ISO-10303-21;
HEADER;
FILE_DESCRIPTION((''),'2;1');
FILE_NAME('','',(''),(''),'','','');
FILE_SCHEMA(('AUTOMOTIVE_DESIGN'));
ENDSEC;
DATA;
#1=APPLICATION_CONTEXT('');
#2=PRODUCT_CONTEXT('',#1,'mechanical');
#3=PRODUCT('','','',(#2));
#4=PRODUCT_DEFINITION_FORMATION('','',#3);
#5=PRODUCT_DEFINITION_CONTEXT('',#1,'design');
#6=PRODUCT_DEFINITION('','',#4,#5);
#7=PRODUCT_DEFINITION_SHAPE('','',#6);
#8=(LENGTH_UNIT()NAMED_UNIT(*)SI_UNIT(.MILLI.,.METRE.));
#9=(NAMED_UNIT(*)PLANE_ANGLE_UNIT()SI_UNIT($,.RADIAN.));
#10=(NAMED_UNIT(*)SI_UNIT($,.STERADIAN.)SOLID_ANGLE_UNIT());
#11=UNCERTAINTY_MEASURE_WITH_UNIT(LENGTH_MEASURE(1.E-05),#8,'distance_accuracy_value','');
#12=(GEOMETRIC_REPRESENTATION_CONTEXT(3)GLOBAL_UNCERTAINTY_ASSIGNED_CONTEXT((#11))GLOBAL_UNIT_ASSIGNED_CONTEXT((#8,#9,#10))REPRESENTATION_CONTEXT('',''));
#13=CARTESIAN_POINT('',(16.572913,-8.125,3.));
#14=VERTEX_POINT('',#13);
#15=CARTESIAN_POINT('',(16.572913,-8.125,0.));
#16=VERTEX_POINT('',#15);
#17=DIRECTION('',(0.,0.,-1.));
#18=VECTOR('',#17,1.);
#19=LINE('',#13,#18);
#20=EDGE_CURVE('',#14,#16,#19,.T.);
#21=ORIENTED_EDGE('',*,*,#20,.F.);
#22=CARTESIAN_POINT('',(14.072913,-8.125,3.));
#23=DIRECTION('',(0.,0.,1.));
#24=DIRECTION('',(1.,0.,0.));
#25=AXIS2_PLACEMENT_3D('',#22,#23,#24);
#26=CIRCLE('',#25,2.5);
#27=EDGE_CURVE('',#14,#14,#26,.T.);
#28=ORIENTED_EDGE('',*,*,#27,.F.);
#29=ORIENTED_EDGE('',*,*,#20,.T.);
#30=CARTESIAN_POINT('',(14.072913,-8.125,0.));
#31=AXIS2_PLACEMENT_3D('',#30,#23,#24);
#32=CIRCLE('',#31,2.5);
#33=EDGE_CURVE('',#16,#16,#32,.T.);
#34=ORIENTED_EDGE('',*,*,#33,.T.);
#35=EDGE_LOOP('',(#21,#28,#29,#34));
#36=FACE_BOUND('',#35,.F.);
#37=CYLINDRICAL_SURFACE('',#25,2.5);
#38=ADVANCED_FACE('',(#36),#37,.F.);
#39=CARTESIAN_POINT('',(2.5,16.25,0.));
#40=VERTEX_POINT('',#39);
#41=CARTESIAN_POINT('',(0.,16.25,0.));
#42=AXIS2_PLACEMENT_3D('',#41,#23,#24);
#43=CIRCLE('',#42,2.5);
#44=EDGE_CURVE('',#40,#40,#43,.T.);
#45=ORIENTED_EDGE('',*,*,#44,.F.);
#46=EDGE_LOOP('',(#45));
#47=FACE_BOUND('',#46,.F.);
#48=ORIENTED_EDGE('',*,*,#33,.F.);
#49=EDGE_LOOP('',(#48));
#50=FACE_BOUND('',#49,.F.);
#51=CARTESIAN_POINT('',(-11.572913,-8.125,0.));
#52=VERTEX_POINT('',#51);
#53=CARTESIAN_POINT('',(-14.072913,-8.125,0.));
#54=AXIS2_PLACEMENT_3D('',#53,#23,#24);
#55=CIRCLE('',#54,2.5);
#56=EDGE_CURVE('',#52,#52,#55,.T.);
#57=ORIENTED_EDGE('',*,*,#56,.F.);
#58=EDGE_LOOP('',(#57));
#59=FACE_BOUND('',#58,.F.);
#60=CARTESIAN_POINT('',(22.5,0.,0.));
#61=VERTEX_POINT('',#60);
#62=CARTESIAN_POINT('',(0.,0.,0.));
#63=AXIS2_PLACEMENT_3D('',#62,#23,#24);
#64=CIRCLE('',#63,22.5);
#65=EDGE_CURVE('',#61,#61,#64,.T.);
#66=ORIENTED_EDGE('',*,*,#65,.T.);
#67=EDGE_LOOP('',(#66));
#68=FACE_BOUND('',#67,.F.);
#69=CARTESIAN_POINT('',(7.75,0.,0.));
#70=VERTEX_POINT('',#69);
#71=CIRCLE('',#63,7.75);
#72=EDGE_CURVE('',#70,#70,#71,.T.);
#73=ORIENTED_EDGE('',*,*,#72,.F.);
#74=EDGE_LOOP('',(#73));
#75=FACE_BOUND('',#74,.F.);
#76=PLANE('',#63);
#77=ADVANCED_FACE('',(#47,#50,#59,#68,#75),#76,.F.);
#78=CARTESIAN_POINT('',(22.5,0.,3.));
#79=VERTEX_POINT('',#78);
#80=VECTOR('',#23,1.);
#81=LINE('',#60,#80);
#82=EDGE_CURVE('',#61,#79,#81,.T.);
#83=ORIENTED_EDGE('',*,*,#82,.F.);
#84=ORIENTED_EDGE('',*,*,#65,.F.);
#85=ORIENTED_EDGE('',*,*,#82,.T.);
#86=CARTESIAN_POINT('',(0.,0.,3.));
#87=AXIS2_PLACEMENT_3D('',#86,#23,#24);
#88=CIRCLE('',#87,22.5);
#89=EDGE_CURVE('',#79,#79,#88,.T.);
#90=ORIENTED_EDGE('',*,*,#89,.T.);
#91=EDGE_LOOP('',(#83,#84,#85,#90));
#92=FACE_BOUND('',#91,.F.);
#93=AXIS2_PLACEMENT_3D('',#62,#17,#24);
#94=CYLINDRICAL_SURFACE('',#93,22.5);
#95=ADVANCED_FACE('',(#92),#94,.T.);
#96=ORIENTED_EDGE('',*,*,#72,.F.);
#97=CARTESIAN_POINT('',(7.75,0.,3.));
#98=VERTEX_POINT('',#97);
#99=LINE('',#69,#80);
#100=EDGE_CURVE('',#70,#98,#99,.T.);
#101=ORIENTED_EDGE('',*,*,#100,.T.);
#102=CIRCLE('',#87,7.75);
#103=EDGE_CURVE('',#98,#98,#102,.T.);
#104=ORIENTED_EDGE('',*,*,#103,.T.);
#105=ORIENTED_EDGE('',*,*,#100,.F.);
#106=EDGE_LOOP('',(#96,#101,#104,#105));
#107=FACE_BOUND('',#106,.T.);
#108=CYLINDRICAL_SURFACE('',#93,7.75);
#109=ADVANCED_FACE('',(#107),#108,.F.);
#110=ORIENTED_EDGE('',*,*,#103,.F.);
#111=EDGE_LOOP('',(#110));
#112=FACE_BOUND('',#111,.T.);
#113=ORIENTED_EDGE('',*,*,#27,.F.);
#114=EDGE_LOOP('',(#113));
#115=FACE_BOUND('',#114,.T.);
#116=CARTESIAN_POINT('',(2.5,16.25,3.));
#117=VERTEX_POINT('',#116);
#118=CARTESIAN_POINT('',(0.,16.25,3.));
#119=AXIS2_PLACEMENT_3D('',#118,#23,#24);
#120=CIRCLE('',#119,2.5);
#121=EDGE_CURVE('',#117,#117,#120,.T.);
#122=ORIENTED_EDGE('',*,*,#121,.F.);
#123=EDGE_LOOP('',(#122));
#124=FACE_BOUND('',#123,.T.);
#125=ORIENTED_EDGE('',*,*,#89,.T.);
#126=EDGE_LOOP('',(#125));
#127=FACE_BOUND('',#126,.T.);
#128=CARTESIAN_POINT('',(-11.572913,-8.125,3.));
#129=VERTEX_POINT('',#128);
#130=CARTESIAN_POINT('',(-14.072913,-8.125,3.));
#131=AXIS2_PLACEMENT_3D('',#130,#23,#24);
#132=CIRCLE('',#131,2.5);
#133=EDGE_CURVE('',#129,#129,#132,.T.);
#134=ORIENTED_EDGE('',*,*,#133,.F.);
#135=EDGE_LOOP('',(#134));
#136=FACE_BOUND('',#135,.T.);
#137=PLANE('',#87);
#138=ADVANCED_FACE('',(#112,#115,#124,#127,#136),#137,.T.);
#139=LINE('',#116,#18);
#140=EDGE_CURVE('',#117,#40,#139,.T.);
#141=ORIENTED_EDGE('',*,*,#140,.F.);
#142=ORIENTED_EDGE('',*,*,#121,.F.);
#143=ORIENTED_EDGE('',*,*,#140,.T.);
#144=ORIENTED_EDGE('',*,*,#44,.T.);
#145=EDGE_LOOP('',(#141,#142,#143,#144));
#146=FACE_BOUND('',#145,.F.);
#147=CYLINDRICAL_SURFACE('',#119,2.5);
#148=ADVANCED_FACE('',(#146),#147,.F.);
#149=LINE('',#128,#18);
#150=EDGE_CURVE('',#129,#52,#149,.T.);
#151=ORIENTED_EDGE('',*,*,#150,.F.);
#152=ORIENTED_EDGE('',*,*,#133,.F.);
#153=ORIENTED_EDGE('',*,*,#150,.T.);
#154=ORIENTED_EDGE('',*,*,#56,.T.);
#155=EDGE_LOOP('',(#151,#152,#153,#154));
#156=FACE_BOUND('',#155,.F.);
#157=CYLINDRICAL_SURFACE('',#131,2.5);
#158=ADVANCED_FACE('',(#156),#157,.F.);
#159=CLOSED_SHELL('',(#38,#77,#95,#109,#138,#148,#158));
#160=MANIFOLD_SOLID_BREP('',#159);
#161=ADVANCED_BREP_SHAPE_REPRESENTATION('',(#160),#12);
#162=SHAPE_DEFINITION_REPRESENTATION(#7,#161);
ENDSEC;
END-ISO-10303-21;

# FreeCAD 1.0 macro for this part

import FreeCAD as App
import Part
import Sketcher
from FreeCAD import Vector
Q = App.Units.Quantity

doc = App.newDocument("Part")
body = doc.addObject("PartDesign::Body", "Body")

sketch1 = body.newObject("Sketcher::SketchObject", "Sketch")
sketch1.AttachmentSupport = (doc.getObject("XY_Plane"), [""])
sketch1.MapMode = "FlatFace"
sketch1.addGeometry([
    Part.Circle(Vector(0, 0, 0), Vector(0, 0, 1), 22),
    Part.Circle(Vector(0, 0, 0), Vector(0, 0, 1), 8),
], False)
sketch1.addConstraint([
    Sketcher.Constraint("Coincident", 0, 3, -1, 1),
    Sketcher.Constraint("Coincident", 1, 3, -1, 1),
    Sketcher.Constraint("Diameter", 0, Q("45 mm")),
    Sketcher.Constraint("Diameter", 1, Q("15.5 mm")),
])
pad1 = body.newObject("PartDesign::Pad", "Pad")
pad1.Profile = sketch1
pad1.Length = 3

sketch2 = body.newObject("Sketcher::SketchObject", "Sketch001")
sketch2.AttachmentSupport = (doc.getObject("XY_Plane"), [""])
sketch2.MapMode = "FlatFace"
sketch2.AttachmentOffset = App.Placement(Vector(0, 0, 3), App.Rotation())
sketch2.addGeometry([
    Part.Circle(Vector(14.1, -8.1, 0), Vector(0, 0, 1), 2.5),
    Part.Circle(Vector(-14.1, -8.1, 0), Vector(0, 0, 1), 2.5),
    Part.Circle(Vector(0, 16.2, 0), Vector(0, 0, 1), 2.5),
], False)
sketch2.addConstraint([
    Sketcher.Constraint("Equal", 0, 1),
    Sketcher.Constraint("Equal", 1, 2),
    Sketcher.Constraint("Symmetric", 0, 3, 1, 3, -2),
    Sketcher.Constraint("PointOnObject", 2, 3, -2),
    Sketcher.Constraint("Diameter", 0, Q("5 mm")),
    Sketcher.Constraint("DistanceY", -1, 1, 2, 3, Q("16.25 mm")),
    Sketcher.Constraint("DistanceY", 0, 3, -1, 1, Q("8.125 mm")),
    Sketcher.Constraint("DistanceX", -1, 1, 0, 3, Q("14.072913 mm")),
])
pocket1 = body.newObject("PartDesign::Pocket", "Pocket")
pocket1.Profile = sketch2
pocket1.Length = 22.1

doc.recompute()
